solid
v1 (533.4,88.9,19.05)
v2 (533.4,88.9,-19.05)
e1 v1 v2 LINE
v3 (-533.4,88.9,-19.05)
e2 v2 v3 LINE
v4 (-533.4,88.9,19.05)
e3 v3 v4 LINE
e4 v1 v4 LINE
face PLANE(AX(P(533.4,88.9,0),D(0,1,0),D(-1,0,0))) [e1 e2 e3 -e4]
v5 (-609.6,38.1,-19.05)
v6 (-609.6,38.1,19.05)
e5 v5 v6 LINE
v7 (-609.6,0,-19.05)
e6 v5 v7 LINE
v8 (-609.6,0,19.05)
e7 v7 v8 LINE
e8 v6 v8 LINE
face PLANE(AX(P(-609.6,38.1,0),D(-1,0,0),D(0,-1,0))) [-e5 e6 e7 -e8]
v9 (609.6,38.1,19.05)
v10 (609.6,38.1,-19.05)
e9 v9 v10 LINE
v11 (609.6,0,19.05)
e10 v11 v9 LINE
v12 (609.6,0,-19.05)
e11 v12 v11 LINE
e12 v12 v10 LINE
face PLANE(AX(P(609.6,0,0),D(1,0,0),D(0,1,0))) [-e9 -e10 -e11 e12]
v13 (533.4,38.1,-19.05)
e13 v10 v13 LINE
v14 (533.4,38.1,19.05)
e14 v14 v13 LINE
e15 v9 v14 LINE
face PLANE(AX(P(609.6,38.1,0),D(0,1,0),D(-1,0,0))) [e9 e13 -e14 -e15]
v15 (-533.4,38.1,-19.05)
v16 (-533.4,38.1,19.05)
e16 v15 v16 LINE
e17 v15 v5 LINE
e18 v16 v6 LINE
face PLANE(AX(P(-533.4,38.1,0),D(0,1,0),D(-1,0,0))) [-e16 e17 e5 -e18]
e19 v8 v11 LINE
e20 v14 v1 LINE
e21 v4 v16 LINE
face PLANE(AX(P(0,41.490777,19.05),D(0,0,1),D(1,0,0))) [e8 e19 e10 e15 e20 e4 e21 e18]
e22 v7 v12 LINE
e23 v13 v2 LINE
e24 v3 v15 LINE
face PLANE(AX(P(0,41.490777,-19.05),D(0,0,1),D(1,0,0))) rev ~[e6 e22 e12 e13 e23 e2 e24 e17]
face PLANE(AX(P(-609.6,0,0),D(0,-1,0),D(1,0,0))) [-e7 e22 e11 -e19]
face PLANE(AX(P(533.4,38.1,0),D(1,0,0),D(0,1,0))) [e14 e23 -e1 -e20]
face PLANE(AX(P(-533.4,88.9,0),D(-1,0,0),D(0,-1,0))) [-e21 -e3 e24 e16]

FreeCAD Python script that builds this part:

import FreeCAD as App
import Part
import Sketcher

V = App.Vector
Q = App.Units.Quantity


def add_polygon(sketch, points):
    """Adds a closed chain of lines whose ends are joined by coincident constraints."""
    first, n = sketch.GeometryCount, len(points)
    for a, b in zip(points, points[1:] + points[:1]):
        sketch.addGeometry(Part.LineSegment(App.Vector(*a, 0), App.Vector(*b, 0)), False)
    for i in range(n):
        sketch.addConstraint(Sketcher.Constraint("Coincident", first + i, 2, first + (i + 1) % n, 1))

doc = App.newDocument("Part")
body = doc.addObject("PartDesign::Body", "Body")

# Sketch on XY plane
sketch1 = doc.addObject("Sketcher::SketchObject", "Sketch")
body.addObject(sketch1)
sketch1.AttachmentSupport = (doc.XY_Plane, [""])
sketch1.MapMode = "FlatFace"
add_polygon(sketch1, [(533.4, 88.9), (-533.4, 88.9), (-533.4, 38.1), (-609.6, 38.1), (-609.6, 0), (609.6, 0), (609.6, 38.1), (533.4, 38.1)])  # lines 0-7
sketch1.addConstraint([
    Sketcher.Constraint("Horizontal", 0),
    Sketcher.Constraint("Vertical", 1),
    Sketcher.Constraint("Horizontal", 2),
    Sketcher.Constraint("Vertical", 3),
    Sketcher.Constraint("Horizontal", 4),
    Sketcher.Constraint("Vertical", 5),
    Sketcher.Constraint("Horizontal", 6),
    Sketcher.Constraint("Vertical", 7),
    Sketcher.Constraint("Symmetric", 3, 2, 4, 2, -1, 1),
    Sketcher.Constraint("Symmetric", 1, 2, 6, 2, -2),
    Sketcher.Constraint("DistanceX", 0, 2, 0, 1, Q("42 in")),
    Sketcher.Constraint("DistanceX", 2, 2, 2, 1, Q("3 in")),
    Sketcher.Constraint("DistanceY", 1, 2, 1, 1, Q("2 in")),
    Sketcher.Constraint("DistanceY", 3, 2, 3, 1, Q("1.5 in")),
])
pad1 = doc.addObject("PartDesign::Pad", "Pad")
body.addObject(pad1)
pad1.Profile = sketch1
pad1.Length = Q("1.5 in")
pad1.Midplane = True

doc.recompute()
